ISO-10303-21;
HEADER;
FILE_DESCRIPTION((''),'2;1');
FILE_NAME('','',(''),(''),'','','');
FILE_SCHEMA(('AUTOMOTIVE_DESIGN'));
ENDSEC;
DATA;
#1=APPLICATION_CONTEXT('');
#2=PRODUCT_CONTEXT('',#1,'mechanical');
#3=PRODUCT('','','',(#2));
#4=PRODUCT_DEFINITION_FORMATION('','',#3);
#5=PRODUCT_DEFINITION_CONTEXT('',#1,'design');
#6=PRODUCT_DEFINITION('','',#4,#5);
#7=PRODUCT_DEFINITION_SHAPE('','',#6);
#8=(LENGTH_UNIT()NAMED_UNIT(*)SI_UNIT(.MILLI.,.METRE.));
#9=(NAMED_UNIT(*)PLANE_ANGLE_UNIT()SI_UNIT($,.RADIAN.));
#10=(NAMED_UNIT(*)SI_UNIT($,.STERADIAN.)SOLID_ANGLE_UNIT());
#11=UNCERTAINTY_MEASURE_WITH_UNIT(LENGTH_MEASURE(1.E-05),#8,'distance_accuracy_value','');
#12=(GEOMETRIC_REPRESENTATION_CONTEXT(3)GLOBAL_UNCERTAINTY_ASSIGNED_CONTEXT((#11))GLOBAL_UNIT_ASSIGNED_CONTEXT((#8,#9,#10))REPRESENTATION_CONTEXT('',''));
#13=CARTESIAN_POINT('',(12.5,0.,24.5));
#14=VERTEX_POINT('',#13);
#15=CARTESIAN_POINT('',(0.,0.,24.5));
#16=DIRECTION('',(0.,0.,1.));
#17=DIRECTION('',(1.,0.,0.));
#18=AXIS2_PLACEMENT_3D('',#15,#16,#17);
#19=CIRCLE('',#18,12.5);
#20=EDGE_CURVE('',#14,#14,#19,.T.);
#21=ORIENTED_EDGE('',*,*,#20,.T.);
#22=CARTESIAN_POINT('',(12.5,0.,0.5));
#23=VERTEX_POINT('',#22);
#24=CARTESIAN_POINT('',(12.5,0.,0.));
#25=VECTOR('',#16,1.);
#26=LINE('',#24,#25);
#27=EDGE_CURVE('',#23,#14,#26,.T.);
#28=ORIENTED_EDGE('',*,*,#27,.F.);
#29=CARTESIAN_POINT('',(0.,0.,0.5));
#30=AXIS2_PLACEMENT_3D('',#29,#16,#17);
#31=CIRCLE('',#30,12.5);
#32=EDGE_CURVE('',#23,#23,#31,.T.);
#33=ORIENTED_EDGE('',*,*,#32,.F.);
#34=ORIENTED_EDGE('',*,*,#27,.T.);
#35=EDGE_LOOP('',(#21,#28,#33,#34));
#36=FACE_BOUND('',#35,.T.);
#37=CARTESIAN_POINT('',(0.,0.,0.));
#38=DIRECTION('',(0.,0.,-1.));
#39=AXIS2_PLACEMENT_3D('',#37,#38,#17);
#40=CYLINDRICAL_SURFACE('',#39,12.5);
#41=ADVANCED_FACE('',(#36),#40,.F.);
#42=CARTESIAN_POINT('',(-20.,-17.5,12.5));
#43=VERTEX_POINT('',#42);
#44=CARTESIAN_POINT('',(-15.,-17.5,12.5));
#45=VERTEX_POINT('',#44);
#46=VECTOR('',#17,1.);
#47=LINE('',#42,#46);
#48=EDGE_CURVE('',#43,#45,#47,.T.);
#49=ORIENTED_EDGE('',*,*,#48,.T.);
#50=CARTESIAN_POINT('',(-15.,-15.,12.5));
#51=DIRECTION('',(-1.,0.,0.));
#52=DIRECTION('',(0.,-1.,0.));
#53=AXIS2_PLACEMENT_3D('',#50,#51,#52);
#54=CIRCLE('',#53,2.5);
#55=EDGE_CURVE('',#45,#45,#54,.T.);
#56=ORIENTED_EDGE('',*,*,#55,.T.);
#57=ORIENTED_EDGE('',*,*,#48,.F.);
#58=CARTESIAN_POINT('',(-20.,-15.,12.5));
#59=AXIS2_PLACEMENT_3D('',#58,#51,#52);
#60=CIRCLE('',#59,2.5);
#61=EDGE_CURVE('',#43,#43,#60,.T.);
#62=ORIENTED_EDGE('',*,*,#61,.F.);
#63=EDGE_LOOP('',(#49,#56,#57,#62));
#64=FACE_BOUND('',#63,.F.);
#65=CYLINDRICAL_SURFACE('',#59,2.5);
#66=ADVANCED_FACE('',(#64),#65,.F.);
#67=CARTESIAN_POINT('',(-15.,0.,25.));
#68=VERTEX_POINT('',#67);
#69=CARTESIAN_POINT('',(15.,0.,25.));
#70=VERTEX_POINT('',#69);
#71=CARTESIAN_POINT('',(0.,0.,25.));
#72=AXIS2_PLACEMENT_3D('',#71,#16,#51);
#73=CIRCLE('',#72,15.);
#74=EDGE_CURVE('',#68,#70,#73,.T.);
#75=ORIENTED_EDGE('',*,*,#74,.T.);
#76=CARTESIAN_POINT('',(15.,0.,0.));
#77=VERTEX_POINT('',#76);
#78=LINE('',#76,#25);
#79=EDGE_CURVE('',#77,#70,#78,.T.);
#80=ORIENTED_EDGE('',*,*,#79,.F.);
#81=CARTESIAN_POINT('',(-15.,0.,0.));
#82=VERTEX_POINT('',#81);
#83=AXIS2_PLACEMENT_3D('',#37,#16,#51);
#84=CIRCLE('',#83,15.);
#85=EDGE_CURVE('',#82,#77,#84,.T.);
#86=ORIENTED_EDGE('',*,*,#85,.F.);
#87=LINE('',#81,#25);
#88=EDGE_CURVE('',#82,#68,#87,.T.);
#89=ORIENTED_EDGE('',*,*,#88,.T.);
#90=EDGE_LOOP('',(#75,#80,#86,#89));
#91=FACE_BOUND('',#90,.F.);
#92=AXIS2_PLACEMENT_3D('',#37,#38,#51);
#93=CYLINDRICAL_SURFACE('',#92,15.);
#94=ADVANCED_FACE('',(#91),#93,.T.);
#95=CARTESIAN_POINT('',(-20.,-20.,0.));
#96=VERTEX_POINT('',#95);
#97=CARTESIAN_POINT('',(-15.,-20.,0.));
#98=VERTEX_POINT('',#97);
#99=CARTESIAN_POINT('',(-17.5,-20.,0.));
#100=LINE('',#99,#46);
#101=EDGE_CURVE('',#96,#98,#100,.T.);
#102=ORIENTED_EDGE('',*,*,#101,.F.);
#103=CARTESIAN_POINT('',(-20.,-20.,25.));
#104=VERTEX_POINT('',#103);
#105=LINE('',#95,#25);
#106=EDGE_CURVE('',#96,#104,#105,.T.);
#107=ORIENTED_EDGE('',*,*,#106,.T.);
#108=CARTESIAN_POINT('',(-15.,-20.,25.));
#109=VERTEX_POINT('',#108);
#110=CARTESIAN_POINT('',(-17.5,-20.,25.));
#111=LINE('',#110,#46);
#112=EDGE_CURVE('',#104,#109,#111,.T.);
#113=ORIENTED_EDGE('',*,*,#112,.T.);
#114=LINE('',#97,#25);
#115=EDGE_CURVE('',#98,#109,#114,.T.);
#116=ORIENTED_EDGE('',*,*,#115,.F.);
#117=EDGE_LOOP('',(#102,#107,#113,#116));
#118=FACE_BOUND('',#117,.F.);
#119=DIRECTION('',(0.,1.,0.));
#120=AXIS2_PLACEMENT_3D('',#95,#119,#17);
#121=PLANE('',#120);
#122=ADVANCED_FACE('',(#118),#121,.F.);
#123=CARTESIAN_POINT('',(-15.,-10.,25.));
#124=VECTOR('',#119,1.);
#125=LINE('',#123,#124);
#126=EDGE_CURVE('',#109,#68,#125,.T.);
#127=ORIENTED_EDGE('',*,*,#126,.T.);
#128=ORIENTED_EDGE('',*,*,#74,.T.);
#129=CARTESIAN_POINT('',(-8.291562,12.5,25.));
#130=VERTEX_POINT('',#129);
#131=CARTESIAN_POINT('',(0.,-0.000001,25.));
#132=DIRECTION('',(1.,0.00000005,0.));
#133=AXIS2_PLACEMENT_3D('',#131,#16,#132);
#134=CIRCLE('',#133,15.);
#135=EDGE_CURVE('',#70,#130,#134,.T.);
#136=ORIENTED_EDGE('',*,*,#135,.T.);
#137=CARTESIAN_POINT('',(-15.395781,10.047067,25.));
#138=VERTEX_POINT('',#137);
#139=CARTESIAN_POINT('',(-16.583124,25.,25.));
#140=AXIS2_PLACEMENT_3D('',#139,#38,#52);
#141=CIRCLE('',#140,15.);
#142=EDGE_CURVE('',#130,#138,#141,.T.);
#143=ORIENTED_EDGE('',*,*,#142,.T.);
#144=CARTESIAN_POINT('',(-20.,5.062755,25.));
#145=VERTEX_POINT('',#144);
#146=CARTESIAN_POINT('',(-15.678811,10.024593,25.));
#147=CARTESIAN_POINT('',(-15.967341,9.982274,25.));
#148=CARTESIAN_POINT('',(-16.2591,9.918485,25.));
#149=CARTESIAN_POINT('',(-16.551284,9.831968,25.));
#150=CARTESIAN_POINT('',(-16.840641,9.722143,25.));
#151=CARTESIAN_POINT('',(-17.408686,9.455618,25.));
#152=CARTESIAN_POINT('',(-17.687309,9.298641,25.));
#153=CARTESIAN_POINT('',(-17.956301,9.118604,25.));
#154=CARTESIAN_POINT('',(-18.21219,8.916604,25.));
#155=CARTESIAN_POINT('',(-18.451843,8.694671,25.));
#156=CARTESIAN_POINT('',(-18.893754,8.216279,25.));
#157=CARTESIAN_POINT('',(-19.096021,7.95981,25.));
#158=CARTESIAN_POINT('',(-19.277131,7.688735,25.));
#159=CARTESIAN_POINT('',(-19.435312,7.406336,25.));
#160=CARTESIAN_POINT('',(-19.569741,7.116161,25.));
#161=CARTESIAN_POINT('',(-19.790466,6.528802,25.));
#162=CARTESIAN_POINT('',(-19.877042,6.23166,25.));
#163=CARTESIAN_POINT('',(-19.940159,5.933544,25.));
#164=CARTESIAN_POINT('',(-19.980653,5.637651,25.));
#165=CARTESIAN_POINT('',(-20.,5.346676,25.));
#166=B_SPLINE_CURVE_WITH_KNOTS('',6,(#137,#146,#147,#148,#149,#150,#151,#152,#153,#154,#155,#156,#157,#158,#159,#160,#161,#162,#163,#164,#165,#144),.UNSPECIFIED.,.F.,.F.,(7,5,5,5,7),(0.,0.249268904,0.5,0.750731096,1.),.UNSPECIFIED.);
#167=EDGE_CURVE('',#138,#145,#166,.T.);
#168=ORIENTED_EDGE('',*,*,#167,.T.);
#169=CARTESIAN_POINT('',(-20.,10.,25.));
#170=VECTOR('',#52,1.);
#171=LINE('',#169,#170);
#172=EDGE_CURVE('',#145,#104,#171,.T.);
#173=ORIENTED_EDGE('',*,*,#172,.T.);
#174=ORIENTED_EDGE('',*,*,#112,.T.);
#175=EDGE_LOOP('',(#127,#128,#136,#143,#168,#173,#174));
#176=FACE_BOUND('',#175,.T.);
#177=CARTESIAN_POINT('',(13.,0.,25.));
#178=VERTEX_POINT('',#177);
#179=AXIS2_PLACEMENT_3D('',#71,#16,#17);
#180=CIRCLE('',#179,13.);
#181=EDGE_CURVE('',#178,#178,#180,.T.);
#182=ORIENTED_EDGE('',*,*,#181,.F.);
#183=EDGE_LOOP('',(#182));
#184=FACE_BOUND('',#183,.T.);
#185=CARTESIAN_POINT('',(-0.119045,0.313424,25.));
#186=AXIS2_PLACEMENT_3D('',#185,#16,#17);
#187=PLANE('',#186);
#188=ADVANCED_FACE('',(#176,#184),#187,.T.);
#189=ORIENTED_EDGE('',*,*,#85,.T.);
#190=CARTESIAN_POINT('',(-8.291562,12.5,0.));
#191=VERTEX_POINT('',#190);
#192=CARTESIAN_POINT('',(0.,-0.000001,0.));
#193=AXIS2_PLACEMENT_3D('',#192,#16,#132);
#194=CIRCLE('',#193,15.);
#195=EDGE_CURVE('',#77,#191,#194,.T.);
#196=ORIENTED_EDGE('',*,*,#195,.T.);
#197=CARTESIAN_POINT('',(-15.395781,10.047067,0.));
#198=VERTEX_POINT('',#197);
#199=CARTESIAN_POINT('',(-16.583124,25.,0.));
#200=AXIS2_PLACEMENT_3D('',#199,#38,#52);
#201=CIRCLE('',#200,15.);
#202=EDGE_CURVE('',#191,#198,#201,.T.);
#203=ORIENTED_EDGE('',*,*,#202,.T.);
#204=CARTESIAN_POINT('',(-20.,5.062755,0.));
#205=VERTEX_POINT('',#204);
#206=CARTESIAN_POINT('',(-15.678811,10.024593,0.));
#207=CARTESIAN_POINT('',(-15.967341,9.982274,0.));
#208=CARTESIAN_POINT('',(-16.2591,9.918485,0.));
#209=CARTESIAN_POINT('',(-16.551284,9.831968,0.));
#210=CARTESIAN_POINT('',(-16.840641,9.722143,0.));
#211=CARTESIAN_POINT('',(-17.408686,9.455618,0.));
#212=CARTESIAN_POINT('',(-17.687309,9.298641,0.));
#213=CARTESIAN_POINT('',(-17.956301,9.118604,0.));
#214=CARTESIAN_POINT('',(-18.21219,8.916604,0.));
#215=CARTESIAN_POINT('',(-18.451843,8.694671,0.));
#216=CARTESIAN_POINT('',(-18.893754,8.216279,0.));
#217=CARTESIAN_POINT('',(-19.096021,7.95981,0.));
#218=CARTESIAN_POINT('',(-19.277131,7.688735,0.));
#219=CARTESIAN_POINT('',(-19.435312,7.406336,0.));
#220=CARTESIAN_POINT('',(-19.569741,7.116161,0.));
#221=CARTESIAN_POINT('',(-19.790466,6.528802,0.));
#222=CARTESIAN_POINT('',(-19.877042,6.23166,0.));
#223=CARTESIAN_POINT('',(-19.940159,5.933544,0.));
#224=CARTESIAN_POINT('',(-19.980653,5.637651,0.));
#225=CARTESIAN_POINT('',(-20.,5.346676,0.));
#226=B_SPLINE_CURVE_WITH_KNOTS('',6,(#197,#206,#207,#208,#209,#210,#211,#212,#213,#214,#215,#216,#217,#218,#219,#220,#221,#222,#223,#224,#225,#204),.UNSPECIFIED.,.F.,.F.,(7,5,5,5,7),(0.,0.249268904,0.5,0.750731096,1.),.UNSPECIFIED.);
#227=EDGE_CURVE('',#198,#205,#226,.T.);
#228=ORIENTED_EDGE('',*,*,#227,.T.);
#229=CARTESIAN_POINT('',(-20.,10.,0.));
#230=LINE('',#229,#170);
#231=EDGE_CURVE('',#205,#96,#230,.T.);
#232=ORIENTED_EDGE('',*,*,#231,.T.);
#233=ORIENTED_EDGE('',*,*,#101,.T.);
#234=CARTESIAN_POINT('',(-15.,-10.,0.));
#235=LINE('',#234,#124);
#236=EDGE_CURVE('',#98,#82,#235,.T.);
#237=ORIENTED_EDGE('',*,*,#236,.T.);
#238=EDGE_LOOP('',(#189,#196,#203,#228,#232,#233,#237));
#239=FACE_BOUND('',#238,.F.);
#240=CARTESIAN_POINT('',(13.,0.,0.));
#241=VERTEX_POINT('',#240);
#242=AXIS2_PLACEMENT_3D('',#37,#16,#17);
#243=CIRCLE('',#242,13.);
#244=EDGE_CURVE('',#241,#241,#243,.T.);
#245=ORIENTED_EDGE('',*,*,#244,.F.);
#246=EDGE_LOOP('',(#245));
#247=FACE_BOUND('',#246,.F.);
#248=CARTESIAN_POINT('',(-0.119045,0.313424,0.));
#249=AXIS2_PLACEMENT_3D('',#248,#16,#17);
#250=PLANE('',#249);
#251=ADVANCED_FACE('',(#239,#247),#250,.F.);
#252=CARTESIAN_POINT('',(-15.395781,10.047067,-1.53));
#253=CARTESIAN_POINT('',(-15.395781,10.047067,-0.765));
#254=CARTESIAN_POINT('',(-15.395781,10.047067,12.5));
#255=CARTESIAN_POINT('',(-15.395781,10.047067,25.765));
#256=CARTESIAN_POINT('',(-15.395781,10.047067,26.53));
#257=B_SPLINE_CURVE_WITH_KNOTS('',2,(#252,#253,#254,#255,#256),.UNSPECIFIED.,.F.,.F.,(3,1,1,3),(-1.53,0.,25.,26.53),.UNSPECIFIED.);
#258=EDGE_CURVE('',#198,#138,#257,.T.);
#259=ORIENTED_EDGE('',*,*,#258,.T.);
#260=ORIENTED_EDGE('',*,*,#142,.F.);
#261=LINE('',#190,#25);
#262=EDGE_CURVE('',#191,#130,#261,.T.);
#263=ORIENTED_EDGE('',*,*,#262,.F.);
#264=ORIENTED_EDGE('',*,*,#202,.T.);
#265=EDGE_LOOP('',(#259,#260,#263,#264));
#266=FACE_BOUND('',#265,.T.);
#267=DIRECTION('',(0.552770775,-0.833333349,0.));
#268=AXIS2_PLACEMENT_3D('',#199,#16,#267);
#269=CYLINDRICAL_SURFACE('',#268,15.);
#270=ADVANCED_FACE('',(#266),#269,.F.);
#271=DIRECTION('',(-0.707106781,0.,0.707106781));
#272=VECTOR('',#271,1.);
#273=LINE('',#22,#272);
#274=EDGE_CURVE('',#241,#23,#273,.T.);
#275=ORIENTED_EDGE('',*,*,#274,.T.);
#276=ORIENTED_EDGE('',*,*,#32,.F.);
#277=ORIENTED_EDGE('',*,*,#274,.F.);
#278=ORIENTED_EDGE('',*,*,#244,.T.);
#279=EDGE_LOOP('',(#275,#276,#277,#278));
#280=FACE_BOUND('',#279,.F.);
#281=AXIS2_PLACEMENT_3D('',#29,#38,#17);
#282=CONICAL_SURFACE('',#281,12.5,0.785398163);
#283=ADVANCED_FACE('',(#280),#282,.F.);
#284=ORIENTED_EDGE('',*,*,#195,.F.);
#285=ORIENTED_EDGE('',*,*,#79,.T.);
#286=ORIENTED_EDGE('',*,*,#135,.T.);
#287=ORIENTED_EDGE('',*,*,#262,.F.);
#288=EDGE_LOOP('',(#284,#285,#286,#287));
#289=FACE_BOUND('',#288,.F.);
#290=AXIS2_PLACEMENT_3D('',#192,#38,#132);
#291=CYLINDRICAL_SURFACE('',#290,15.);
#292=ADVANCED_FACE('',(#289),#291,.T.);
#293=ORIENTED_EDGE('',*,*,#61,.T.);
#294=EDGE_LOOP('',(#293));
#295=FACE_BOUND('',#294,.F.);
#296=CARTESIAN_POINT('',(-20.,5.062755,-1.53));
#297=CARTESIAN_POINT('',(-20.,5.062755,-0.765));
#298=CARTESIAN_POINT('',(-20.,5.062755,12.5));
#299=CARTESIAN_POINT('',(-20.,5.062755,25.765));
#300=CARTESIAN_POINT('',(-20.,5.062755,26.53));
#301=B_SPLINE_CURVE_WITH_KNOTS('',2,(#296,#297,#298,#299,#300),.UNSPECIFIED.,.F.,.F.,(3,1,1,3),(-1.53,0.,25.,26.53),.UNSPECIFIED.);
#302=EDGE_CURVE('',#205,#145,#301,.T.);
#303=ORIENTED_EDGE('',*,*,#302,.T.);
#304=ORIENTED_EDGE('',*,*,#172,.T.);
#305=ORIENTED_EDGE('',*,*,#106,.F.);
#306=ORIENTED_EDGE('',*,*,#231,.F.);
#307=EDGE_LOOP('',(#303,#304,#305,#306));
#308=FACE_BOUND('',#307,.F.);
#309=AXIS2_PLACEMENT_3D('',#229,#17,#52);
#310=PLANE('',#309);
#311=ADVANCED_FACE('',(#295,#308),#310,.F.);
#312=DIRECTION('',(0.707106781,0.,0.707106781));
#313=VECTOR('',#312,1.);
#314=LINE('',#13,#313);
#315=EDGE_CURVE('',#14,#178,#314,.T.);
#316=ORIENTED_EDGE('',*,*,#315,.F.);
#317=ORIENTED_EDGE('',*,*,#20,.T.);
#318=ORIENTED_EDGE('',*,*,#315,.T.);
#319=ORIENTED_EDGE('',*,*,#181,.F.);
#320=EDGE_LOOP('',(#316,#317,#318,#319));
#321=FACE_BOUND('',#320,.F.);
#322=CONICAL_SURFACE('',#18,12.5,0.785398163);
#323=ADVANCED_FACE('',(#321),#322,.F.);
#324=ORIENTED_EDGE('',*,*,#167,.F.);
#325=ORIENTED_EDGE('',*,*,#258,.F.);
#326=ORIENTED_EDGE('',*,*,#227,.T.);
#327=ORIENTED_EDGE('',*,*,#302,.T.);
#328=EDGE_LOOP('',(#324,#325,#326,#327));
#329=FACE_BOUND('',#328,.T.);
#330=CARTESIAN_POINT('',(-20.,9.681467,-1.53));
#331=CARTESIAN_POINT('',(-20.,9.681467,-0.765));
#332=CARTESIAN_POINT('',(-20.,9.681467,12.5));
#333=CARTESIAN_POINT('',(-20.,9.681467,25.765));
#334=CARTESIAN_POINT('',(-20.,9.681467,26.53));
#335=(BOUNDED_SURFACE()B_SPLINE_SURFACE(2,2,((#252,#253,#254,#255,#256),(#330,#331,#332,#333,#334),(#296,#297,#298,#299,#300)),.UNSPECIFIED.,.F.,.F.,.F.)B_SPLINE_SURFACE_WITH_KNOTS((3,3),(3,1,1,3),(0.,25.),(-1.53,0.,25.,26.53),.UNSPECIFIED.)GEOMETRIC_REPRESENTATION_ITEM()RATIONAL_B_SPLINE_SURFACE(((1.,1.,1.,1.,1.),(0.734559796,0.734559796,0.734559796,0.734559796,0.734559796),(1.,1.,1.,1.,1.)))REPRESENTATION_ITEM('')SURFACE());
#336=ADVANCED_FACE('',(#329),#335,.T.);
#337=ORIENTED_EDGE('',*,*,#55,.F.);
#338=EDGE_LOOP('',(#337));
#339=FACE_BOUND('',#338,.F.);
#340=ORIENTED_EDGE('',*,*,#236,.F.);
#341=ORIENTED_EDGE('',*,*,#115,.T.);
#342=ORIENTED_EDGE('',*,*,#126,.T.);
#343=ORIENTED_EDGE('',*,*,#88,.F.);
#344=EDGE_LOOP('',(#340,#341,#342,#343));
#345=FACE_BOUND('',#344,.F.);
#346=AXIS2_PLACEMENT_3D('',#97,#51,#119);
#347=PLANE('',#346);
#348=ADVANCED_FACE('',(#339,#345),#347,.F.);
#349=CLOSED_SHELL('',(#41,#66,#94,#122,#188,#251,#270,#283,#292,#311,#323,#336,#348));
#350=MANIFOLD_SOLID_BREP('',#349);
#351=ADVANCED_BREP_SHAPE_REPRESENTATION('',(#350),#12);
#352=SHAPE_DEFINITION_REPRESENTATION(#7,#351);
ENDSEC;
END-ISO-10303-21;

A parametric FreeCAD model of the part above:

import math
import FreeCAD as App
import Part
import Sketcher
Q = App.Units.Quantity


def edges_at(feature, points):
    """Names of the edges that pass closest to the given points."""
    edges = feature.Shape.Edges
    near = lambda p: min(range(len(edges)), key=lambda i: edges[i].distToShape(Part.Vertex(*p))[0])
    return sorted({f"Edge{near(p) + 1}" for p in points})

doc = App.newDocument("Part")
body = doc.addObject("PartDesign::Body", "Body")

sketch1 = body.newObject("Sketcher::SketchObject", "Sketch")
sketch1.AttachmentSupport = (doc.getObject("XY_Plane"), [""])
sketch1.MapMode = "FlatFace"
sketch1.addGeometry([
    Part.ArcOfCircle(Part.Circle(App.Vector(0, 0, 0), App.Vector(0, 0, 1), 15), math.radians(180), math.radians(360)),
    Part.ArcOfCircle(Part.Circle(App.Vector(0, 0, 0), App.Vector(0, 0, 1), 15), math.radians(0), math.radians(138)),
    Part.LineSegment(App.Vector(-11, 10, 0), App.Vector(-20, 10, 0)),
    Part.LineSegment(App.Vector(-20, 10, 0), App.Vector(-20, -20, 0)),
    Part.LineSegment(App.Vector(-20, -20, 0), App.Vector(-15, -20, 0)),
    Part.LineSegment(App.Vector(-15, -20, 0), App.Vector(-15, 0, 0)),
    Part.Circle(App.Vector(0, 0, 0), App.Vector(0, 0, 1), 12),
], False)
sketch1.addConstraint([
    Sketcher.Constraint("Tangent", 0, 2, 1, 1),
    Sketcher.Constraint("Coincident", 1, 2, 2, 1),
    Sketcher.Constraint("Coincident", 2, 2, 3, 1),
    Sketcher.Constraint("Coincident", 3, 2, 4, 1),
    Sketcher.Constraint("Coincident", 4, 2, 5, 1),
    Sketcher.Constraint("Tangent", 5, 2, 0, 1),
    Sketcher.Constraint("Horizontal", 2),
    Sketcher.Constraint("Vertical", 3),
    Sketcher.Constraint("Horizontal", 4),
    Sketcher.Constraint("Vertical", 5),
    Sketcher.Constraint("Coincident", 0, 3, -1, 1),
    Sketcher.Constraint("Coincident", 6, 3, -1, 1),
    Sketcher.Constraint("Equal", 0, 1),
    Sketcher.Constraint("PointOnObject", 0, 2, -1),
    Sketcher.Constraint("Diameter", 6, Q("25 mm")),
    Sketcher.Constraint("Radius", 0, Q("15 mm")),
    Sketcher.Constraint("DistanceX", 4, 1, 4, 2, Q("5 mm")),
    Sketcher.Constraint("DistanceY", 3, 2, 3, 1, Q("30 mm")),
    Sketcher.Constraint("DistanceY", 5, 1, 5, 2, Q("20 mm")),
])
pad1 = body.newObject("PartDesign::Pad", "Pad")
pad1.Profile = sketch1
pad1.Length = 25
doc.recompute()

fillet = body.newObject("PartDesign::Fillet", "Fillet")
fillet.Base = (pad1, edges_at(pad1, [(-11.18, 10, 12.5)]))
fillet.Radius = 15
doc.recompute()

fillet2 = body.newObject("PartDesign::Fillet", "Fillet001")
fillet2.Base = (fillet, edges_at(fillet, [(-20, 10, 12.5)]))
fillet2.Radius = 5

sketch2 = body.newObject("Sketcher::SketchObject", "Sketch001")
sketch2.AttachmentSupport = (doc.getObject("YZ_Plane"), [""])
sketch2.MapMode = "FlatFace"
sketch2.AttachmentOffset = App.Placement(App.Vector(0, 0, -20), App.Rotation())
sketch2.addGeometry(Part.Circle(App.Vector(-15, 12.5, 0), App.Vector(0, 0, 1), 2.5), False)
sketch2.addConstraint([
    Sketcher.Constraint("Diameter", 0, Q("5 mm")),
    Sketcher.Constraint("DistanceX", 0, 3, -1, 1, Q("15 mm")),
    Sketcher.Constraint("DistanceY", -1, 1, 0, 3, Q("12.5 mm")),
])
pocket1 = body.newObject("PartDesign::Pocket", "Pocket")
pocket1.Profile = sketch2
pocket1.Length = 5
pocket1.Reversed = True
doc.recompute()

chamfer = body.newObject("PartDesign::Chamfer", "Chamfer")
chamfer.Base = (pocket1, edges_at(pocket1, [(-12.5, 0, 0), (-12.5, 0, 25)]))
chamfer.Size = 0.5

doc.recompute()
